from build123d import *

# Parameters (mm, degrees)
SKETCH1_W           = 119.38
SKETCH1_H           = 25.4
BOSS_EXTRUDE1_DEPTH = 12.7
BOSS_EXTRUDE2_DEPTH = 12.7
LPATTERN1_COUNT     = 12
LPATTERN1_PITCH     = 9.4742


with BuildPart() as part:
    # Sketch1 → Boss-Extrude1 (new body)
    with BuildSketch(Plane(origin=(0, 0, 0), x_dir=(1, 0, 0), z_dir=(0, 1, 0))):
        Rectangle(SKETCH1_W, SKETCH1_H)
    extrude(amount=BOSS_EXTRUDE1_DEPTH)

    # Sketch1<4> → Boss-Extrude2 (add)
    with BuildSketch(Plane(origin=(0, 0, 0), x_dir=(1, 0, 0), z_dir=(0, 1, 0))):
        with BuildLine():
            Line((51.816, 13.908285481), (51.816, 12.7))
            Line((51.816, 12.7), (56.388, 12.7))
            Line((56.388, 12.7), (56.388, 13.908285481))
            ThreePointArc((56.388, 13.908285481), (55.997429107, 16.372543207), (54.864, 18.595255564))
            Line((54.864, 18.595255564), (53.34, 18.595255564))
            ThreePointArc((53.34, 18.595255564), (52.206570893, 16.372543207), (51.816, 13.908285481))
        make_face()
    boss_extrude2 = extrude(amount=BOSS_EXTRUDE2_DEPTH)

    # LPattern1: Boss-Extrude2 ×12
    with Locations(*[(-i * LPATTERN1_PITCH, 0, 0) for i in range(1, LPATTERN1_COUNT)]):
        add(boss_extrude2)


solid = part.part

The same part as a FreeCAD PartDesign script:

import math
import FreeCAD as App
import Part
import Sketcher

V = App.Vector
Q = App.Units.Quantity

doc = App.newDocument("Part")
params = doc.addObject("Spreadsheet::Sheet", "Params")
for row, (alias, value) in enumerate([
    ("sketch1_height", "1 in"),
    ("sketch1_width", "4.7 in"),
    ("pad1_length", "0.5 in"),
    ("sketch2_width", "0.18 in"),
    ("sketch2_width2", "0.06 in"),
    ("pad2_length", "0.5 in"),
    ("linearpattern_pitch", "0.373 in"),
], start=1):
    params.set(f"A{row}", alias)
    params.set(f"B{row}", "=" + value)
    params.setAlias(f"B{row}", alias)

body = doc.addObject("PartDesign::Body", "Body")

# Sketch on XZ plane
sketch1 = body.newObject("Sketcher::SketchObject", "Sketch")
sketch1.AttachmentSupport = (doc.getObject("XZ_Plane"), [""])
sketch1.MapMode = "FlatFace"
sketch1.addGeometry([
    Part.LineSegment(V(-59.69, -12.7, 0), V(-59.69, 12.7, 0)),
    Part.LineSegment(V(-59.69, 12.7, 0), V(59.69, 12.7, 0)),
    Part.LineSegment(V(59.69, 12.7, 0), V(59.69, -12.7, 0)),
    Part.LineSegment(V(59.69, -12.7, 0), V(-59.69, -12.7, 0)),
], False)
sketch1.addConstraint([
    Sketcher.Constraint("Coincident", 0, 2, 1, 1),
    Sketcher.Constraint("Coincident", 1, 2, 2, 1),
    Sketcher.Constraint("Coincident", 2, 2, 3, 1),
    Sketcher.Constraint("Coincident", 3, 2, 0, 1),
    Sketcher.Constraint("Vertical", 0),
    Sketcher.Constraint("Horizontal", 1),
    Sketcher.Constraint("Vertical", 2),
    Sketcher.Constraint("Horizontal", 3),
    Sketcher.Constraint("Symmetric", 0, 2, 2, 2, -1, 1),
    Sketcher.Constraint("DistanceY", 0, 1, 0, 2, Q("1 in")),
    Sketcher.Constraint("DistanceX", 1, 1, 1, 2, Q("4.7 in")),
])
sketch1.setExpression("Constraints[9]", "Params.sketch1_height")
sketch1.setExpression("Constraints[10]", "Params.sketch1_width")
pad1 = body.newObject("PartDesign::Pad", "Pad")
pad1.Profile = sketch1
pad1.setExpression("Length", "Params.pad1_length")
pad1.Reversed = True

# Sketch on XZ plane
sketch2 = body.newObject("Sketcher::SketchObject", "Sketch001")
sketch2.AttachmentSupport = (doc.getObject("XZ_Plane"), [""])
sketch2.MapMode = "FlatFace"
sketch2.addGeometry([
    Part.LineSegment(V(51.816, -13.908285, 0), V(51.816, -12.7, 0)),  # 0
    Part.LineSegment(V(51.816, -12.7, 0), V(56.388, -12.7, 0)),  # 1
    Part.LineSegment(V(56.388, -12.7, 0), V(56.388, -13.908285, 0)),  # 2
    Part.ArcOfCircle(Part.Circle(V(48.418753, -13.908285, 0), V(0, 0, 1), 7.969247), math.radians(-36.02457), math.radians(0)),  # 3
    Part.LineSegment(V(54.864, -18.595256, 0), V(53.34, -18.595256, 0)),  # 4
    Part.ArcOfCircle(Part.Circle(V(59.785247, -13.908285, 0), V(0, 0, 1), 7.969247), math.radians(180), math.radians(216.02457)),  # 5
], False)
sketch2.addConstraint([
    Sketcher.Constraint("Coincident", 0, 2, 1, 1),
    Sketcher.Constraint("Coincident", 1, 2, 2, 1),
    Sketcher.Constraint("Tangent", 2, 2, 3, 2),
    Sketcher.Constraint("Coincident", 3, 1, 4, 1),
    Sketcher.Constraint("Coincident", 4, 2, 5, 2),
    Sketcher.Constraint("Tangent", 5, 1, 0, 1),
    Sketcher.Constraint("Vertical", 0),
    Sketcher.Constraint("Horizontal", 1),
    Sketcher.Constraint("Vertical", 2),
    Sketcher.Constraint("Horizontal", 4),
    Sketcher.Constraint("Equal", 3, 5),
    Sketcher.Constraint("Horizontal", 3, 3, 5, 3),
    Sketcher.Constraint("DistanceX", 1, 1, 1, 2, Q("0.18 in")),
    Sketcher.Constraint("DistanceX", 4, 2, 4, 1, Q("0.06 in")),
    Sketcher.Constraint("DistanceY", 0, 2, -1, 1, Q("0.5 in")),
    Sketcher.Constraint("DistanceX", -1, 1, 4, 2, Q("2.1 in")),
    Sketcher.Constraint("DistanceX", -1, 1, 3, 3, Q("1.9062501 in")),
    Sketcher.Constraint("DistanceY", 0, 1, 0, 2, 1.208285),
])
sketch2.setExpression("Constraints[12]", "Params.sketch2_width")
sketch2.setExpression("Constraints[13]", "Params.sketch2_width2")
pad2 = body.newObject("PartDesign::Pad", "Pad001")
pad2.Profile = sketch2
pad2.setExpression("Length", "Params.pad2_length")
pad2.Reversed = True
doc.recompute()

linearpattern = body.newObject("PartDesign::LinearPattern", "LinearPattern")
linearpattern.Originals = [pad2]
linearpattern.Direction = (doc.getObject("X_Axis"), [""])
linearpattern.Mode = "offset"
linearpattern.setExpression("Offset", "Params.linearpattern_pitch")
linearpattern.Occurrences = 12
linearpattern.Reversed = True
body.Tip = linearpattern

doc.recompute()
